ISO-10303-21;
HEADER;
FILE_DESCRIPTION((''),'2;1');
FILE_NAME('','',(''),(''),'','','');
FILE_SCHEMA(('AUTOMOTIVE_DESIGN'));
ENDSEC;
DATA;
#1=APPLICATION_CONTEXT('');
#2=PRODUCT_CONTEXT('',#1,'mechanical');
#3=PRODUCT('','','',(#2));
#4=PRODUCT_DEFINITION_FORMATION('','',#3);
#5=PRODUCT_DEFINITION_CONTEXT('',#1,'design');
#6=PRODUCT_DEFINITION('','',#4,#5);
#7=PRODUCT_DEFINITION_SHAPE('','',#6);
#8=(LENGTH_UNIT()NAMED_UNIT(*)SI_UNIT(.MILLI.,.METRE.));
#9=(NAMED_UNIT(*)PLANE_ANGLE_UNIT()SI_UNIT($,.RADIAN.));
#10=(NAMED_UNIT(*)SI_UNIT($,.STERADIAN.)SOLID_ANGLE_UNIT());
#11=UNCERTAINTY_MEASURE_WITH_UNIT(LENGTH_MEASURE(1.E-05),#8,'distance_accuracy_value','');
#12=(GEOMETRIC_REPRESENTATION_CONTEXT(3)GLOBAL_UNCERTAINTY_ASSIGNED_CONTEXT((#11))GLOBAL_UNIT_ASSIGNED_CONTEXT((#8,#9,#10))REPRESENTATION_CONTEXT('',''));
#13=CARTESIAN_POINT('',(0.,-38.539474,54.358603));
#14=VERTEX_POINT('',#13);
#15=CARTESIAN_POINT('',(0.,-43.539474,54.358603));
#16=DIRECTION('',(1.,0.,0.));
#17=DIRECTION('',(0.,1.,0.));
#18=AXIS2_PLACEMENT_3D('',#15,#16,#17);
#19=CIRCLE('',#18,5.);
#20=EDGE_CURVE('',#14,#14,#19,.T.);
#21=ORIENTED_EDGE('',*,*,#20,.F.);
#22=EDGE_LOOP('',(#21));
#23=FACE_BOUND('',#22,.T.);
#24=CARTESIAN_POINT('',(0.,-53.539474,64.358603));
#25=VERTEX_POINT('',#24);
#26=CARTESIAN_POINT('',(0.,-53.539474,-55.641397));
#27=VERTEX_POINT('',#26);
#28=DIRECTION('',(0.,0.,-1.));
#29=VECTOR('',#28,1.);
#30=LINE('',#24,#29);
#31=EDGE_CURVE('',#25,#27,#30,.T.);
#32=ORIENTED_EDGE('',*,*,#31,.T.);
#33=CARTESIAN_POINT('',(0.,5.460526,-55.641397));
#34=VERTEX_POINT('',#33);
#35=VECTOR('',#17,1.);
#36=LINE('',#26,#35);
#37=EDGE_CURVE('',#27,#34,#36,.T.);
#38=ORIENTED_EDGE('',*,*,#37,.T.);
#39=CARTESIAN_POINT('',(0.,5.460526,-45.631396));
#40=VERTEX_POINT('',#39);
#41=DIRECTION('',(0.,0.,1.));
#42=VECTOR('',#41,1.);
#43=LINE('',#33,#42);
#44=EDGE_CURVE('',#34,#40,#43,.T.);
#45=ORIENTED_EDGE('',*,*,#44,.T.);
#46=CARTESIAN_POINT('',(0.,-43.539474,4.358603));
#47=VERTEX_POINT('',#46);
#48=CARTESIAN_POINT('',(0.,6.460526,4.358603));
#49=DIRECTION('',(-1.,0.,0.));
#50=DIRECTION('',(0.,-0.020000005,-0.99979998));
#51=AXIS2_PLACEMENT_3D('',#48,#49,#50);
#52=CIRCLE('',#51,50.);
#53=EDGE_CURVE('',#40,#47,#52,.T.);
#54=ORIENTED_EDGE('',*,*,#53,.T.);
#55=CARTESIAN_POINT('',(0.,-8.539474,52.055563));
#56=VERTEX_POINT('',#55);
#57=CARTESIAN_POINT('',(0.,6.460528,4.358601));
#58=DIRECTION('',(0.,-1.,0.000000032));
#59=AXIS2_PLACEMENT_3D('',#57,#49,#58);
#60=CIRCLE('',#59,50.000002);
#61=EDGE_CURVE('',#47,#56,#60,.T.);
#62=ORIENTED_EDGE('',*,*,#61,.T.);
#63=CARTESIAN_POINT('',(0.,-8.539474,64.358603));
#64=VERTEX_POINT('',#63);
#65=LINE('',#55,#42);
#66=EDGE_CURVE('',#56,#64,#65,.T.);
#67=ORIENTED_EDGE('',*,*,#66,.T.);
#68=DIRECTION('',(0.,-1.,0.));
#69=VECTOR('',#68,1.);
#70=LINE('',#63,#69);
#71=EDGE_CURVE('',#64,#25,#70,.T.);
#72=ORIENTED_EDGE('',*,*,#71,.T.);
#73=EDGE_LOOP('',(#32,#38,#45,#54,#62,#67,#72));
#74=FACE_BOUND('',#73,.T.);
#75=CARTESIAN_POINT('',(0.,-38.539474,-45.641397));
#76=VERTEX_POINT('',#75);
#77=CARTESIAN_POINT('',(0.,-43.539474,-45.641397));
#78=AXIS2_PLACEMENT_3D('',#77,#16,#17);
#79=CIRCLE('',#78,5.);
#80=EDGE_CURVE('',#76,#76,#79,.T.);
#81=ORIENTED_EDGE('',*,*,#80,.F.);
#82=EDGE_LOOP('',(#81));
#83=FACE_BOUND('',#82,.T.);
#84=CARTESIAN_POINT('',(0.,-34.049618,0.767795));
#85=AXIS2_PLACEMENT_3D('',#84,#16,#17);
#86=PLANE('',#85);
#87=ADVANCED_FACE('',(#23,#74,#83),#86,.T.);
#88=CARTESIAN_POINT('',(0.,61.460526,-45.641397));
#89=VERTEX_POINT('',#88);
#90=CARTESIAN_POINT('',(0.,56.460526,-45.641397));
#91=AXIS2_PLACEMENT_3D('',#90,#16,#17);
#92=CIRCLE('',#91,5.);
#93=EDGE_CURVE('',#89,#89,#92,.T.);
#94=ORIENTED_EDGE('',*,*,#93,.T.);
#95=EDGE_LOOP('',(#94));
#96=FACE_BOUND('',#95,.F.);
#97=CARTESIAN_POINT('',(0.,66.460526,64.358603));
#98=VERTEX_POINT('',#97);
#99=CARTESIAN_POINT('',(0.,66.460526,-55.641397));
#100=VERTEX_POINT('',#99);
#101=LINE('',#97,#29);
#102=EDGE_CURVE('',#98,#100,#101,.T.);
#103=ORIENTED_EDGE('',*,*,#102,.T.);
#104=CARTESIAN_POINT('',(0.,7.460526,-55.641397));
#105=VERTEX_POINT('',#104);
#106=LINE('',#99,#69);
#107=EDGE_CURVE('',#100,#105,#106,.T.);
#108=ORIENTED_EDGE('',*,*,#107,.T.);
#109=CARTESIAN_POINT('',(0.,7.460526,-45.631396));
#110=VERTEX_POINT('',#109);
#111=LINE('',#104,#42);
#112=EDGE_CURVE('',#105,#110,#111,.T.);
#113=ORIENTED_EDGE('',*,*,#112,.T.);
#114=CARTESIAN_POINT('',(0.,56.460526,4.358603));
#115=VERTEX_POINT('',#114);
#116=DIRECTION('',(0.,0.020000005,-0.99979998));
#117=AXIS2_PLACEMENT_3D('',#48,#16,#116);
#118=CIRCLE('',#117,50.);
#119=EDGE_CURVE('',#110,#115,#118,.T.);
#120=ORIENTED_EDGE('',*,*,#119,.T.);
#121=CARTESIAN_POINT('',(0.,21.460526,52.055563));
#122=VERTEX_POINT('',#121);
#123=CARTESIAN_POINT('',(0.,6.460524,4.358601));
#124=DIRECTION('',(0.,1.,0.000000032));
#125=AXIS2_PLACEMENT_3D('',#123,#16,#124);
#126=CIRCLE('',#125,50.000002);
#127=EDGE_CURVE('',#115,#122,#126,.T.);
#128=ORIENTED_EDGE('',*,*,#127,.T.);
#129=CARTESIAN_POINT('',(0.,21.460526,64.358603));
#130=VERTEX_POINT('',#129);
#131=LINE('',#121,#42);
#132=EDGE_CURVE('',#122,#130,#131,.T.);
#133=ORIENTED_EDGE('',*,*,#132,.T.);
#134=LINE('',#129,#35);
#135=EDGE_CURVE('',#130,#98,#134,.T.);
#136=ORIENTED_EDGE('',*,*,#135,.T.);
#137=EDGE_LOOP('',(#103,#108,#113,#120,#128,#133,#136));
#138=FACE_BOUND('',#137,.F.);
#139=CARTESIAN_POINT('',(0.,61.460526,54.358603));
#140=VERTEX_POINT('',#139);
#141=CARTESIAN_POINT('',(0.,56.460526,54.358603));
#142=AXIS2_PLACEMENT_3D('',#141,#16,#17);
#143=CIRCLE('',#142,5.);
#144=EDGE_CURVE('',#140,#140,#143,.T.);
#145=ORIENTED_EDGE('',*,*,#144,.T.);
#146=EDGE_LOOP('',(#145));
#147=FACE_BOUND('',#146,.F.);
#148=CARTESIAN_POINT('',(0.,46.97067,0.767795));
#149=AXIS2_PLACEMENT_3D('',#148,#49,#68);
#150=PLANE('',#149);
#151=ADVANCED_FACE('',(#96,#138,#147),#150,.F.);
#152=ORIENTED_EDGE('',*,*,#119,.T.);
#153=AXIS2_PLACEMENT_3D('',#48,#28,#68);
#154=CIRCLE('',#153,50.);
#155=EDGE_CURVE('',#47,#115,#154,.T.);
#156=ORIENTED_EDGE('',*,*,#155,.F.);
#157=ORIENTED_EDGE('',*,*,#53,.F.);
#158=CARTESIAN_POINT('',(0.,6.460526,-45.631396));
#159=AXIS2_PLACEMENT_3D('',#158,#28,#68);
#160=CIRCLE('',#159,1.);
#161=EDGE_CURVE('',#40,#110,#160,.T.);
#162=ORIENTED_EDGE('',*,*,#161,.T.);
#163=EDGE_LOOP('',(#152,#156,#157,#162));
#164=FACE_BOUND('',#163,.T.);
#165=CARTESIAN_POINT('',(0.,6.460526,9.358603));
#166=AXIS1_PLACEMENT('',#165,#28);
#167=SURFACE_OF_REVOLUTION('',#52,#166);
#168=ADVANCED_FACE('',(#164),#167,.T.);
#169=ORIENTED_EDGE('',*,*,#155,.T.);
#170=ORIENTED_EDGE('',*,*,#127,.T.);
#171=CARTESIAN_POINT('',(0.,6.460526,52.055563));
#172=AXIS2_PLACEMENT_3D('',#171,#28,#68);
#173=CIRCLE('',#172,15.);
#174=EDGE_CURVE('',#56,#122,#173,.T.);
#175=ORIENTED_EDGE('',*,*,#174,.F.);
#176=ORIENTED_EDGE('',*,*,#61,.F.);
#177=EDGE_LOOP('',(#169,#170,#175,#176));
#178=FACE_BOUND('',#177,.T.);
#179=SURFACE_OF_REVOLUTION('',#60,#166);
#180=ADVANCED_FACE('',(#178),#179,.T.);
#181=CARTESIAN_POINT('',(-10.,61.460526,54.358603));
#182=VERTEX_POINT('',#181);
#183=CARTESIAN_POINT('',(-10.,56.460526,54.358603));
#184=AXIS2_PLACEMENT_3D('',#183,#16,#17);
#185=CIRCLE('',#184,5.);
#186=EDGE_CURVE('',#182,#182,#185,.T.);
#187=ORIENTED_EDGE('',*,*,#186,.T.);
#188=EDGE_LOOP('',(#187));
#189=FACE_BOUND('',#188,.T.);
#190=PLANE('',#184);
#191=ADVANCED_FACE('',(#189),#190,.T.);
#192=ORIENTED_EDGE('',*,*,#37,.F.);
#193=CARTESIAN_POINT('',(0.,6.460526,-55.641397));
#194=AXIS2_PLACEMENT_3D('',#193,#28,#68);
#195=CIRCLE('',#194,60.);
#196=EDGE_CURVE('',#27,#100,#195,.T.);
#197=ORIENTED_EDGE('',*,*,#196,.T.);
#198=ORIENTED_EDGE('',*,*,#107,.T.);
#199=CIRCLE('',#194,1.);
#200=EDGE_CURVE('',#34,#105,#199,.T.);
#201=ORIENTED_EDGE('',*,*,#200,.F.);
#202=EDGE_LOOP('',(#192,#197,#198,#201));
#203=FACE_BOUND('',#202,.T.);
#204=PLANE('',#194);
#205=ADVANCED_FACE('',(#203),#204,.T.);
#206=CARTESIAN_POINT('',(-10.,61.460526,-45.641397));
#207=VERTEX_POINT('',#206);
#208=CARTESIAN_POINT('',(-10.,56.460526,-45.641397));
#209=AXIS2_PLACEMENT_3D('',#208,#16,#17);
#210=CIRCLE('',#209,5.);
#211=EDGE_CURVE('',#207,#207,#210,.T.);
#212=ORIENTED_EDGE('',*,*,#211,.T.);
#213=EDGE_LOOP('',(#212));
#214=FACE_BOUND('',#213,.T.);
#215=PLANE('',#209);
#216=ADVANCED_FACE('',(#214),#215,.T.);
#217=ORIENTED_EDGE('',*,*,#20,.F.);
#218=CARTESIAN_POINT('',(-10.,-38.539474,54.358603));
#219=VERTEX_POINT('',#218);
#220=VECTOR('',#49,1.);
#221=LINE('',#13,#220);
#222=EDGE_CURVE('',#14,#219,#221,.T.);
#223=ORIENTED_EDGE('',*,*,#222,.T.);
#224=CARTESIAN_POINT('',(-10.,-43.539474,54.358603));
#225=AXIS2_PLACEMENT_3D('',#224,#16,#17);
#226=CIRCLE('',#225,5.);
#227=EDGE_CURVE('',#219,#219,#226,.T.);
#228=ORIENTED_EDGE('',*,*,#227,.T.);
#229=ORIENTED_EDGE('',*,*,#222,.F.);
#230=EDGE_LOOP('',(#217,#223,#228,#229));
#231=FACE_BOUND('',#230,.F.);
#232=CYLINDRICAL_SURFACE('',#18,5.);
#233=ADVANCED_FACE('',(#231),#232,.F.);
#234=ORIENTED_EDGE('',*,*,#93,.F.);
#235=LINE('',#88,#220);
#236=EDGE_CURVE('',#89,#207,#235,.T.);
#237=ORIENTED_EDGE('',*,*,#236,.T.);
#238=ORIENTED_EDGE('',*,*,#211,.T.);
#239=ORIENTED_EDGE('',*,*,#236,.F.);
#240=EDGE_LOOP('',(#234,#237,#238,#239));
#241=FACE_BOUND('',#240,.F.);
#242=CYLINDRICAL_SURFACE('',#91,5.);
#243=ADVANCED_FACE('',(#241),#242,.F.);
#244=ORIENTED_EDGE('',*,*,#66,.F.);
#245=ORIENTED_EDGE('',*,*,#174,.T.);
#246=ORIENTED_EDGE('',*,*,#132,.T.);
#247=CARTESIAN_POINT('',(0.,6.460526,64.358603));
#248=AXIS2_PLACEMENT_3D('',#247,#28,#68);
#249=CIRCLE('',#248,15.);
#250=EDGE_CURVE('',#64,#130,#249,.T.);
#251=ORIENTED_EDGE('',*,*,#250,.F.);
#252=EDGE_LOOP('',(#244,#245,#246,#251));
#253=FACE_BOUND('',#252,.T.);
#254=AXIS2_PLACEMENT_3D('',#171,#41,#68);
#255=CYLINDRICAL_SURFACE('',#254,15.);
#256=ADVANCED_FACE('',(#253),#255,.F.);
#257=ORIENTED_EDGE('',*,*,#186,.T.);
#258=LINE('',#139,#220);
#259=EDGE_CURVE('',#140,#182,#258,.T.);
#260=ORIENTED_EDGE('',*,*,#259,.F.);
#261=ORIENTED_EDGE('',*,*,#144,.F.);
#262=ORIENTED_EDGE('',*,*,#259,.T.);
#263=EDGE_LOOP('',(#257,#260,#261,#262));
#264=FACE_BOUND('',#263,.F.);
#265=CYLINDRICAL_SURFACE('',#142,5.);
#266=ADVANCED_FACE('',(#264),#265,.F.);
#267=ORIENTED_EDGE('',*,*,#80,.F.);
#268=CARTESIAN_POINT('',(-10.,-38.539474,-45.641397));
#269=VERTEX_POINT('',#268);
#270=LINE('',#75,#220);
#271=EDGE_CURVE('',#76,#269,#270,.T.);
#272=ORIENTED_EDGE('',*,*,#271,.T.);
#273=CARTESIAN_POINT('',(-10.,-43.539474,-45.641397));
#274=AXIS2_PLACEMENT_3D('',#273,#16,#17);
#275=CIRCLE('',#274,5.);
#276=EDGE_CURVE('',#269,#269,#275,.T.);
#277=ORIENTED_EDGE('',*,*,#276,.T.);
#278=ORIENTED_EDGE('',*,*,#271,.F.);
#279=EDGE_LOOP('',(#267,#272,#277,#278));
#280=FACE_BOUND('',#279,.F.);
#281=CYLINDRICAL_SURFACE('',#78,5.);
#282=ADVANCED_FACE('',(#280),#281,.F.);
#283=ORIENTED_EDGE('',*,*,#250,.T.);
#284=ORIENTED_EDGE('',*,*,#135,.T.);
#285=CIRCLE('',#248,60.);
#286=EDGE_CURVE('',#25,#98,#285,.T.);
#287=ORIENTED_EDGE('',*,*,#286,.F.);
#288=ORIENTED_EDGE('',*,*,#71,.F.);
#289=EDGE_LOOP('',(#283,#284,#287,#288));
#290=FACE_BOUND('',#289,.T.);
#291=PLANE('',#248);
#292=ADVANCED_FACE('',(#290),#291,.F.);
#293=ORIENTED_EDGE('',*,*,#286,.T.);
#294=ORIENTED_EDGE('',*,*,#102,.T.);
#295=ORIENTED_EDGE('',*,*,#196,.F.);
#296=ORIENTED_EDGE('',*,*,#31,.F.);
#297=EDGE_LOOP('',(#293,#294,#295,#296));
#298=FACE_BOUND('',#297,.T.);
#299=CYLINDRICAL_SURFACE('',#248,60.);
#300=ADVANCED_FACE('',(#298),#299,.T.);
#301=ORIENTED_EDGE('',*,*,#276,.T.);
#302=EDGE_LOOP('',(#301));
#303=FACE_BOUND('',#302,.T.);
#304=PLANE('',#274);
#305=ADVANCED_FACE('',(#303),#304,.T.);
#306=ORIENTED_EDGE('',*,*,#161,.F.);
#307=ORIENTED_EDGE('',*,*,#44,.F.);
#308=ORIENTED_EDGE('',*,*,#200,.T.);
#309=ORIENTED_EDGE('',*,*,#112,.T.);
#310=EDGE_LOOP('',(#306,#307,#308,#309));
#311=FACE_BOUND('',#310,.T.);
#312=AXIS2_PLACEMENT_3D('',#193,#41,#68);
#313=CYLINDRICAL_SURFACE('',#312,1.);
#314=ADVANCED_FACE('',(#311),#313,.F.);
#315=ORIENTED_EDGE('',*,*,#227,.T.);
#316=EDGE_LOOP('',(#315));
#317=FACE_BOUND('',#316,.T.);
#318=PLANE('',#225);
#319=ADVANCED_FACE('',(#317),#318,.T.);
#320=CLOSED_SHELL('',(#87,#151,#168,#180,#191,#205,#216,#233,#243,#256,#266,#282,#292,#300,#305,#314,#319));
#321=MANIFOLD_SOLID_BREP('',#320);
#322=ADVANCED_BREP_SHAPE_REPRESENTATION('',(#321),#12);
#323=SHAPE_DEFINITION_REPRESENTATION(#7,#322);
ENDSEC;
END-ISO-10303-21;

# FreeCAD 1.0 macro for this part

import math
import FreeCAD as App
import Part
import Sketcher

V = App.Vector

doc = App.newDocument("Part")
body = doc.addObject("PartDesign::Body", "Body")

# Sketch on YZ plane
sketch1 = body.newObject("Sketcher::SketchObject", "Sketch")
sketch1.AttachmentSupport = (doc.getObject("YZ_Plane"), [""])
sketch1.MapMode = "FlatFace"
sketch1.addGeometry(Part.LineSegment(V(-8.539474, 64.358603, 0), V(-53.539474, 64.358603, 0)), False)
sketch1.addGeometry(Part.LineSegment(V(-53.539474, 64.358603, 0), V(-53.539474, -55.641397, 0)), False)
sketch1.addGeometry(Part.LineSegment(V(-53.539474, -55.641397, 0), V(5.460526, -55.641397, 0)), False)
sketch1.addGeometry(Part.LineSegment(V(5.460526, -55.641397, 0), V(5.460526, -45.631396, 0)), False)
sketch1.addGeometry(Part.ArcOfCircle(Part.Circle(V(6.460526, 4.358603, 0), V(0, 0, 1), 50), math.radians(-180), math.radians(-91.145992)), False)
sketch1.addGeometry(Part.ArcOfCircle(Part.Circle(V(6.460528, 4.358601, 0), V(0, 0, 1), 50.000002), math.radians(107.457605), math.radians(179.999998)), False)
sketch1.addGeometry(Part.LineSegment(V(-8.539474, 52.055563, 0), V(-8.539474, 64.358603, 0)), False)
sketch1.addGeometry(Part.LineSegment(V(6.460526, -55.641397, 0), V(6.460526, 64.358603, 0)), True)  # axis
sketch1.addConstraint(Sketcher.Constraint("Coincident", 0, 2, 1, 1))
sketch1.addConstraint(Sketcher.Constraint("Coincident", 1, 2, 2, 1))
sketch1.addConstraint(Sketcher.Constraint("Coincident", 2, 2, 3, 1))
sketch1.addConstraint(Sketcher.Constraint("Coincident", 3, 2, 4, 2))
sketch1.addConstraint(Sketcher.Constraint("Tangent", 4, 1, 5, 2))
sketch1.addConstraint(Sketcher.Constraint("Coincident", 5, 1, 6, 1))
sketch1.addConstraint(Sketcher.Constraint("Coincident", 6, 2, 0, 1))
sketch1.addConstraint(Sketcher.Constraint("Horizontal", 0))
sketch1.addConstraint(Sketcher.Constraint("Vertical", 1))
sketch1.addConstraint(Sketcher.Constraint("Horizontal", 2))
sketch1.addConstraint(Sketcher.Constraint("Vertical", 3))
sketch1.addConstraint(Sketcher.Constraint("Vertical", 6))
sketch1.addConstraint(Sketcher.Constraint("Vertical", 7))
sketch1.addConstraint(Sketcher.Constraint("Equal", 4, 5))
sketch1.addConstraint(Sketcher.Constraint("Horizontal", 5, 3, 4, 1))
sketch1.addConstraint(Sketcher.Constraint("Horizontal", 2, 2, 7, 1))
sketch1.addConstraint(Sketcher.Constraint("Horizontal", 6, 2, 7, 2))
sketch1.addConstraint(Sketcher.Constraint("Vertical", 4, 3, 7, 1))
sketch1.addConstraint(Sketcher.Constraint("Radius", 4, 50.0))
sketch1.addConstraint(Sketcher.Constraint("DistanceX", 0, 2, 0, 1, 45.0))
sketch1.addConstraint(Sketcher.Constraint("DistanceX", 2, 1, 2, 2, 59.0))
sketch1.addConstraint(Sketcher.Constraint("DistanceY", 1, 2, 1, 1, 120.0))
sketch1.addConstraint(Sketcher.Constraint("DistanceX", 0, 2, 4, 3, 60.0))
sketch1.addConstraint(Sketcher.Constraint("DistanceY", 4, 3, 0, 2, 60.0))
sketch1.addConstraint(Sketcher.Constraint("DistanceY", -1, 1, 5, 3, 4.358601))
sketch1.addConstraint(Sketcher.Constraint("DistanceX", -1, 1, 5, 3, 6.460528))
revolution = body.newObject("PartDesign::Revolution", "Revolution")
revolution.Profile = sketch1
revolution.ReferenceAxis = (sketch1, ["Axis0"])
revolution.Angle = 180
revolution.Reversed = True

# Sketch on YZ plane
sketch2 = body.newObject("Sketcher::SketchObject", "Sketch001")
sketch2.AttachmentSupport = (doc.getObject("YZ_Plane"), [""])
sketch2.MapMode = "FlatFace"
sketch2.addGeometry(Part.Circle(V(-43.539474, 54.358603, 0), V(0, 0, 1), 5), False)
sketch2.addGeometry(Part.Circle(V(56.460526, 54.358603, 0), V(0, 0, 1), 5), False)
sketch2.addGeometry(Part.Circle(V(-43.539474, -45.641397, 0), V(0, 0, 1), 5), False)
sketch2.addGeometry(Part.Circle(V(56.460526, -45.641397, 0), V(0, 0, 1), 5), False)
sketch2.addConstraint(Sketcher.Constraint("Equal", 0, 1))
sketch2.addConstraint(Sketcher.Constraint("Equal", 1, 2))
sketch2.addConstraint(Sketcher.Constraint("Equal", 2, 3))
sketch2.addConstraint(Sketcher.Constraint("Horizontal", 0, 3, 1, 3))
sketch2.addConstraint(Sketcher.Constraint("Horizontal", 2, 3, 3, 3))
sketch2.addConstraint(Sketcher.Constraint("Vertical", 0, 3, 2, 3))
sketch2.addConstraint(Sketcher.Constraint("Vertical", 1, 3, 3, 3))
sketch2.addConstraint(Sketcher.Constraint("Diameter", 0, 10.0))
sketch2.addConstraint(Sketcher.Constraint("DistanceX", 0, 3, 1, 3, 100.0))
sketch2.addConstraint(Sketcher.Constraint("DistanceY", 2, 3, 0, 3, 100.0))
sketch2.addConstraint(Sketcher.Constraint("DistanceX", 0, 3, -1, 1, 43.539474))
sketch2.addConstraint(Sketcher.Constraint("DistanceY", -1, 1, 0, 3, 54.358603))
pocket1 = body.newObject("PartDesign::Pocket", "Pocket")
pocket1.Profile = sketch2
pocket1.Length = 10

doc.recompute()
